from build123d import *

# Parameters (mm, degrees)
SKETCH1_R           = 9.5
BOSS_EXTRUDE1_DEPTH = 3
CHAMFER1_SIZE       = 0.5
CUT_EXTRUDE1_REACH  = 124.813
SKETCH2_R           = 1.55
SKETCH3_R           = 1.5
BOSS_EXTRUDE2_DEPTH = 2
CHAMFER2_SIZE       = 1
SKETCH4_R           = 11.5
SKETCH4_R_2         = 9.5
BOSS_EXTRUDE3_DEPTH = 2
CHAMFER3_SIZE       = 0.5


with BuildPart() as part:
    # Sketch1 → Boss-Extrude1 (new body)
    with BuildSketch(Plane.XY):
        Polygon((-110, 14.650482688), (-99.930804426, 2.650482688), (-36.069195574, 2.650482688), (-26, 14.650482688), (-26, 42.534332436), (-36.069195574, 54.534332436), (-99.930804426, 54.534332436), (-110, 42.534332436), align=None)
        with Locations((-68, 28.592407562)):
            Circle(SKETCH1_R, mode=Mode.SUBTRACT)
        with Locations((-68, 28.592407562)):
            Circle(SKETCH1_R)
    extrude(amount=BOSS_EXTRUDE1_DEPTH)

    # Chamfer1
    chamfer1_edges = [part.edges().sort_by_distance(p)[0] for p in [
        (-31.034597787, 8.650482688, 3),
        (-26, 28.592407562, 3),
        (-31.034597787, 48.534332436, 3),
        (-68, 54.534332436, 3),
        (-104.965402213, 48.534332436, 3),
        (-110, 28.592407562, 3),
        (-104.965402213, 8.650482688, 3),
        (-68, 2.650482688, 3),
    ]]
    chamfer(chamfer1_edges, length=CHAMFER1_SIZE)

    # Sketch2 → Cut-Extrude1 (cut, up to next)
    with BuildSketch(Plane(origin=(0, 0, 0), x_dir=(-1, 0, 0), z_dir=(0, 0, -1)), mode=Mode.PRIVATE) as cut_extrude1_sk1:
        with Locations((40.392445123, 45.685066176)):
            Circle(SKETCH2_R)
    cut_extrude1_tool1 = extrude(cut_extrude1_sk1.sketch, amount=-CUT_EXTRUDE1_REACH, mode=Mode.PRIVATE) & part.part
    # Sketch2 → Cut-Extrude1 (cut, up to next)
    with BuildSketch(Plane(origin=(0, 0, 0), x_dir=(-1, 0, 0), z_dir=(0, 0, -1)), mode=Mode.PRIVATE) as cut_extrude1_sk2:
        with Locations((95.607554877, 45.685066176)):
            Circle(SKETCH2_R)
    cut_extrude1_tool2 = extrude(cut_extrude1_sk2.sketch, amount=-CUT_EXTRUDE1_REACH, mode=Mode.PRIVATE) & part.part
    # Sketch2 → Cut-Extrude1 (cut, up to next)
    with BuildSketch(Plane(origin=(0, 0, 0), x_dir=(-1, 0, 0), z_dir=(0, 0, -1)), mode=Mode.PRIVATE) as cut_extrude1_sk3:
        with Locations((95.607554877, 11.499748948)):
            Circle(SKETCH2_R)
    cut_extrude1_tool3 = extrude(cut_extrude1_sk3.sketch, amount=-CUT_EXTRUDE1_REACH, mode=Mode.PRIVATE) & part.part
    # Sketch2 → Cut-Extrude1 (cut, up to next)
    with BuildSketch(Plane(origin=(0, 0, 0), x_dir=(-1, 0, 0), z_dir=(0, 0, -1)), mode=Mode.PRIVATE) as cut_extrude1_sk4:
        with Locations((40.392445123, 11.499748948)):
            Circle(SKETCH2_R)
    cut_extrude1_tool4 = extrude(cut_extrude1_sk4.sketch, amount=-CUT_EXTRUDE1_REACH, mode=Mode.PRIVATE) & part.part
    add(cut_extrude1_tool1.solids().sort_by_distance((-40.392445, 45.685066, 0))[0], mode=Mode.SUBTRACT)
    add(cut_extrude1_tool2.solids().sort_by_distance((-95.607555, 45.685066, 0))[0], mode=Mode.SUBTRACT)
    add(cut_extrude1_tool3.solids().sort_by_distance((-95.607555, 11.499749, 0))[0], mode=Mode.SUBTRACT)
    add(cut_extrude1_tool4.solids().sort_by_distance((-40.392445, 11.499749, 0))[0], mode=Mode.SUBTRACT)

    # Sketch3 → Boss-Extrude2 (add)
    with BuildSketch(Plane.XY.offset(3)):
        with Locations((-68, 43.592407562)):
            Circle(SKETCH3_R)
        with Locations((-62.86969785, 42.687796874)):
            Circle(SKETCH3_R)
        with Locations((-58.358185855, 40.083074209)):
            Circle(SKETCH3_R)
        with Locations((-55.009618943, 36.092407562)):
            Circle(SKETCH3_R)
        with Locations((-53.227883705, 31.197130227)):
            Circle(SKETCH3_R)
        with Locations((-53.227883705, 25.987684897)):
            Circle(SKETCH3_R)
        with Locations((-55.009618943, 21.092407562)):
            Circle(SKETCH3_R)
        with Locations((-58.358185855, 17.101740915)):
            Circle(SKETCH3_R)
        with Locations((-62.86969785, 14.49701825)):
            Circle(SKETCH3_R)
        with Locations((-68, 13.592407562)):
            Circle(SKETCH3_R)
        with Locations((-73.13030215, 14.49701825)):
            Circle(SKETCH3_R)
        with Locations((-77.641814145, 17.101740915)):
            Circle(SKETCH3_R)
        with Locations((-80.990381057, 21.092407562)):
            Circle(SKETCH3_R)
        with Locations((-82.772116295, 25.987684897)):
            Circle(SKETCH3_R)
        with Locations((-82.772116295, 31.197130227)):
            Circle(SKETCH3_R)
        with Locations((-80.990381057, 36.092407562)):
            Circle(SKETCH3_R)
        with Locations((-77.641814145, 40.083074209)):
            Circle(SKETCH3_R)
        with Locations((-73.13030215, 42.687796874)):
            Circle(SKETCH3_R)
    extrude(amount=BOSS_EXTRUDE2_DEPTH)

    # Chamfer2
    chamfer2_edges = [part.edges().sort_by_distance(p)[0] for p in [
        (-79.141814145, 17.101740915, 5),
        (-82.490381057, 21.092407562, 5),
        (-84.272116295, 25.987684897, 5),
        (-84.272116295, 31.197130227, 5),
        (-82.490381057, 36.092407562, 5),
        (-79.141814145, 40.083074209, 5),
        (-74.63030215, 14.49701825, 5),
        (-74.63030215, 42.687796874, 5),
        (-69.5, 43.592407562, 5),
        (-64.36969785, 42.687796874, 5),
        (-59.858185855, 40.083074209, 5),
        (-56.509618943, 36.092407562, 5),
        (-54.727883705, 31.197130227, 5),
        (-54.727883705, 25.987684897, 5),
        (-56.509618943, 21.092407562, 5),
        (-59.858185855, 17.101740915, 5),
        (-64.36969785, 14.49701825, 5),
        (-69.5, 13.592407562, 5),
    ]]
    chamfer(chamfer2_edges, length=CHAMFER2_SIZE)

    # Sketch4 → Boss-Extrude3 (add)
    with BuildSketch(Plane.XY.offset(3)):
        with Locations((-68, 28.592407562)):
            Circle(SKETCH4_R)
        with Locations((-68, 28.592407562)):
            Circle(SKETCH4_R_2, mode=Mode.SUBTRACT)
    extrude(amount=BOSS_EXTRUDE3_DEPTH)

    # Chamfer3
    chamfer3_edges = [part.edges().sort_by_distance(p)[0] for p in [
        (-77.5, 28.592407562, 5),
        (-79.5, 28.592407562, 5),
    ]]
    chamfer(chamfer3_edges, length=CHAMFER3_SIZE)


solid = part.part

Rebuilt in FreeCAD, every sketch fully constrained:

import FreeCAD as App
import Part
import Sketcher

V = App.Vector
Q = App.Units.Quantity


def edges_at(feature, points):
    """Names of the edges that pass closest to the given points."""
    edges = feature.Shape.Edges
    near = lambda p: min(range(len(edges)), key=lambda i: edges[i].distToShape(Part.Vertex(*p))[0])
    return sorted({f"Edge{near(p) + 1}" for p in points})

doc = App.newDocument("Part")
params = doc.addObject("Spreadsheet::Sheet", "Params")
for row, (alias, value) in enumerate([
    ("pad1_length", "3 mm"),
    ("chamfer_size", "0.5 mm"),
    ("sketch2_diameter", "3.1 mm"),
    ("sketch3_diameter", "3.1 mm"),
    ("sketch4_diameter", "3.1 mm"),
    ("sketch5_diameter", "3.1 mm"),
    ("sketch6_diameter", "3 mm"),
    ("pad2_length", "2 mm"),
    ("chamfer2_size", "1 mm"),
    ("sketch7_diameter", "23 mm"),
    ("sketch7_diameter2", "19 mm"),
    ("pad3_length", "2 mm"),
    ("chamfer3_size", "0.5 mm"),
], start=1):
    params.set(f"A{row}", alias)
    params.set(f"B{row}", "=" + value)
    params.setAlias(f"B{row}", alias)

body = doc.addObject("PartDesign::Body", "Body")

# Sketch on XY plane
sketch1 = body.newObject("Sketcher::SketchObject", "Sketch")
sketch1.AttachmentSupport = (doc.getObject("XY_Plane"), [""])
sketch1.MapMode = "FlatFace"
sketch1.addGeometry(Part.LineSegment(V(-110, 15, 0), V(-100, 3, 0)), False)
sketch1.addGeometry(Part.LineSegment(V(-100, 3, 0), V(-36, 3, 0)), False)
sketch1.addGeometry(Part.LineSegment(V(-36, 3, 0), V(-26, 15, 0)), False)
sketch1.addGeometry(Part.LineSegment(V(-26, 15, 0), V(-26, 43, 0)), False)
sketch1.addGeometry(Part.LineSegment(V(-26, 43, 0), V(-36, 55, 0)), False)
sketch1.addGeometry(Part.LineSegment(V(-36, 55, 0), V(-100, 55, 0)), False)
sketch1.addGeometry(Part.LineSegment(V(-100, 55, 0), V(-110, 43, 0)), False)
sketch1.addGeometry(Part.LineSegment(V(-110, 43, 0), V(-110, 15, 0)), False)
sketch1.addConstraint(Sketcher.Constraint("Coincident", 0, 2, 1, 1))
sketch1.addConstraint(Sketcher.Constraint("Coincident", 1, 2, 2, 1))
sketch1.addConstraint(Sketcher.Constraint("Coincident", 2, 2, 3, 1))
sketch1.addConstraint(Sketcher.Constraint("Coincident", 3, 2, 4, 1))
sketch1.addConstraint(Sketcher.Constraint("Coincident", 4, 2, 5, 1))
sketch1.addConstraint(Sketcher.Constraint("Coincident", 5, 2, 6, 1))
sketch1.addConstraint(Sketcher.Constraint("Coincident", 6, 2, 7, 1))
sketch1.addConstraint(Sketcher.Constraint("Coincident", 7, 2, 0, 1))
sketch1.addConstraint(Sketcher.Constraint("Horizontal", 1))
sketch1.addConstraint(Sketcher.Constraint("Vertical", 3))
sketch1.addConstraint(Sketcher.Constraint("Horizontal", 5))
sketch1.addConstraint(Sketcher.Constraint("Vertical", 7))
sketch1.addConstraint(Sketcher.Constraint("Parallel", 0, 4))
sketch1.addConstraint(Sketcher.Constraint("Parallel", 2, 6))
sketch1.addConstraint(Sketcher.Constraint("Horizontal", 3, 2, 6, 2))
sketch1.addConstraint(Sketcher.Constraint("Horizontal", 2, 2, 7, 2))
sketch1.addConstraint(Sketcher.Constraint("Vertical", 1, 2, 4, 2))
sketch1.addConstraint(Sketcher.Constraint("Vertical", 0, 2, 5, 2))
sketch1.addConstraint(Sketcher.Constraint("Angle", 0, Q("-50 deg")))
sketch1.addConstraint(Sketcher.Constraint("DistanceX", 2, 2, -1, 1, 26.0))
sketch1.addConstraint(Sketcher.Constraint("DistanceX", 6, 2, -1, 1, 110.0))
sketch1.addConstraint(Sketcher.Constraint("DistanceY", 1, 2, 2, 2, 12.0))
sketch1.addConstraint(Sketcher.Constraint("DistanceY", 3, 1, 3, 2, 27.88385))
sketch1.addConstraint(Sketcher.Constraint("DistanceY", -1, 1, 0, 2, 2.650483))
pad1 = body.newObject("PartDesign::Pad", "Pad")
pad1.Profile = sketch1
pad1.setExpression("Length", "Params.pad1_length")
doc.recompute()

chamfer = body.newObject("PartDesign::Chamfer", "Chamfer")
chamfer.Base = (pad1, edges_at(pad1, [
    (-31.035, 8.65, 3),
    (-26, 28.592, 3),
    (-31.035, 48.534, 3),
    (-68, 54.534, 3),
    (-104.965, 48.534, 3),
    (-110, 28.592, 3),
    (-104.965, 8.65, 3),
    (-68, 2.65, 3),
]))
chamfer.setExpression("Size", "Params.chamfer_size")

# Sketch on XY plane
sketch2 = body.newObject("Sketcher::SketchObject", "Sketch001")
sketch2.AttachmentSupport = (doc.getObject("XY_Plane"), [""])
sketch2.MapMode = "FlatFace"
sketch2.addGeometry(Part.Circle(V(-40.4, 45.7, 0), V(0, 0, 1), 1.6), False)
sketch2.addConstraint(Sketcher.Constraint("Diameter", 0, 3.1))
sketch2.addConstraint(Sketcher.Constraint("DistanceX", 0, 3, -1, 1, 40.392445))
sketch2.addConstraint(Sketcher.Constraint("DistanceY", -1, 1, 0, 3, 45.685066))
sketch2.setExpression("Constraints[0]", "Params.sketch2_diameter")
pocket1 = body.newObject("PartDesign::Pocket", "Pocket")
pocket1.Profile = sketch2
pocket1.Type = "UpToFirst"
pocket1.Reversed = True

# Sketch on XY plane
sketch3 = body.newObject("Sketcher::SketchObject", "Sketch002")
sketch3.AttachmentSupport = (doc.getObject("XY_Plane"), [""])
sketch3.MapMode = "FlatFace"
sketch3.addGeometry(Part.Circle(V(-95.6, 45.7, 0), V(0, 0, 1), 1.6), False)
sketch3.addConstraint(Sketcher.Constraint("Diameter", 0, 3.1))
sketch3.addConstraint(Sketcher.Constraint("DistanceX", 0, 3, -1, 1, 95.607555))
sketch3.addConstraint(Sketcher.Constraint("DistanceY", -1, 1, 0, 3, 45.685066))
sketch3.setExpression("Constraints[0]", "Params.sketch3_diameter")
pocket2 = body.newObject("PartDesign::Pocket", "Pocket001")
pocket2.Profile = sketch3
pocket2.Type = "UpToFirst"
pocket2.Reversed = True

# Sketch on XY plane
sketch4 = body.newObject("Sketcher::SketchObject", "Sketch003")
sketch4.AttachmentSupport = (doc.getObject("XY_Plane"), [""])
sketch4.MapMode = "FlatFace"
sketch4.addGeometry(Part.Circle(V(-95.6, 11.5, 0), V(0, 0, 1), 1.6), False)
sketch4.addConstraint(Sketcher.Constraint("Diameter", 0, 3.1))
sketch4.addConstraint(Sketcher.Constraint("DistanceY", -1, 1, 0, 3, 11.499749))
sketch4.addConstraint(Sketcher.Constraint("DistanceX", 0, 3, -1, 1, 95.607555))
sketch4.setExpression("Constraints[0]", "Params.sketch4_diameter")
pocket3 = body.newObject("PartDesign::Pocket", "Pocket002")
pocket3.Profile = sketch4
pocket3.Type = "UpToFirst"
pocket3.Reversed = True

# Sketch on XY plane
sketch5 = body.newObject("Sketcher::SketchObject", "Sketch004")
sketch5.AttachmentSupport = (doc.getObject("XY_Plane"), [""])
sketch5.MapMode = "FlatFace"
sketch5.addGeometry(Part.Circle(V(-40.4, 11.5, 0), V(0, 0, 1), 1.6), False)
sketch5.addConstraint(Sketcher.Constraint("Diameter", 0, 3.1))
sketch5.addConstraint(Sketcher.Constraint("DistanceY", -1, 1, 0, 3, 11.499749))
sketch5.addConstraint(Sketcher.Constraint("DistanceX", 0, 3, -1, 1, 40.392445))
sketch5.setExpression("Constraints[0]", "Params.sketch5_diameter")
pocket4 = body.newObject("PartDesign::Pocket", "Pocket003")
pocket4.Profile = sketch5
pocket4.Type = "UpToFirst"
pocket4.Reversed = True

# Sketch on XY plane
sketch6 = body.newObject("Sketcher::SketchObject", "Sketch005")
sketch6.AttachmentSupport = (doc.getObject("XY_Plane"), [""])
sketch6.MapMode = "FlatFace"
sketch6.AttachmentOffset = App.Placement(V(0, 0, 3), App.Rotation())
sketch6.addGeometry(Part.Circle(V(-68, 43.6, 0), V(0, 0, 1), 1.5), False)
sketch6.addGeometry(Part.Circle(V(-62.9, 42.7, 0), V(0, 0, 1), 1.5), False)
sketch6.addGeometry(Part.Circle(V(-58.4, 40.1, 0), V(0, 0, 1), 1.5), False)
sketch6.addGeometry(Part.Circle(V(-55, 36.1, 0), V(0, 0, 1), 1.5), False)
sketch6.addGeometry(Part.Circle(V(-53.2, 31.2, 0), V(0, 0, 1), 1.5), False)
sketch6.addGeometry(Part.Circle(V(-53.2, 26, 0), V(0, 0, 1), 1.5), False)
sketch6.addGeometry(Part.Circle(V(-55, 21.1, 0), V(0, 0, 1), 1.5), False)
sketch6.addGeometry(Part.Circle(V(-58.4, 17.1, 0), V(0, 0, 1), 1.5), False)
sketch6.addGeometry(Part.Circle(V(-62.9, 14.5, 0), V(0, 0, 1), 1.5), False)
sketch6.addGeometry(Part.Circle(V(-68, 13.6, 0), V(0, 0, 1), 1.5), False)
sketch6.addGeometry(Part.Circle(V(-73.1, 14.5, 0), V(0, 0, 1), 1.5), False)
sketch6.addGeometry(Part.Circle(V(-77.6, 17.1, 0), V(0, 0, 1), 1.5), False)
sketch6.addGeometry(Part.Circle(V(-81, 21.1, 0), V(0, 0, 1), 1.5), False)
sketch6.addGeometry(Part.Circle(V(-82.8, 26, 0), V(0, 0, 1), 1.5), False)
sketch6.addGeometry(Part.Circle(V(-82.8, 31.2, 0), V(0, 0, 1), 1.5), False)
sketch6.addGeometry(Part.Circle(V(-81, 36.1, 0), V(0, 0, 1), 1.5), False)
sketch6.addGeometry(Part.Circle(V(-77.6, 40.1, 0), V(0, 0, 1), 1.5), False)
sketch6.addGeometry(Part.Circle(V(-73.1, 42.7, 0), V(0, 0, 1), 1.5), False)
sketch6.addConstraint(Sketcher.Constraint("Equal", 0, 1))
sketch6.addConstraint(Sketcher.Constraint("Equal", 1, 2))
sketch6.addConstraint(Sketcher.Constraint("Equal", 2, 3))
sketch6.addConstraint(Sketcher.Constraint("Equal", 3, 4))
sketch6.addConstraint(Sketcher.Constraint("Equal", 4, 5))
sketch6.addConstraint(Sketcher.Constraint("Equal", 5, 6))
sketch6.addConstraint(Sketcher.Constraint("Equal", 6, 7))
sketch6.addConstraint(Sketcher.Constraint("Equal", 7, 8))
sketch6.addConstraint(Sketcher.Constraint("Equal", 8, 9))
sketch6.addConstraint(Sketcher.Constraint("Equal", 9, 10))
sketch6.addConstraint(Sketcher.Constraint("Equal", 10, 11))
sketch6.addConstraint(Sketcher.Constraint("Equal", 11, 12))
sketch6.addConstraint(Sketcher.Constraint("Equal", 12, 13))
sketch6.addConstraint(Sketcher.Constraint("Equal", 13, 14))
sketch6.addConstraint(Sketcher.Constraint("Equal", 14, 15))
sketch6.addConstraint(Sketcher.Constraint("Equal", 15, 16))
sketch6.addConstraint(Sketcher.Constraint("Equal", 16, 17))
sketch6.addConstraint(Sketcher.Constraint("Horizontal", 8, 3, 10, 3))
sketch6.addConstraint(Sketcher.Constraint("Horizontal", 7, 3, 11, 3))
sketch6.addConstraint(Sketcher.Constraint("Horizontal", 6, 3, 12, 3))
sketch6.addConstraint(Sketcher.Constraint("Horizontal", 5, 3, 13, 3))
sketch6.addConstraint(Sketcher.Constraint("Horizontal", 4, 3, 14, 3))
sketch6.addConstraint(Sketcher.Constraint("Horizontal", 3, 3, 15, 3))
sketch6.addConstraint(Sketcher.Constraint("Horizontal", 2, 3, 16, 3))
sketch6.addConstraint(Sketcher.Constraint("Horizontal", 1, 3, 17, 3))
sketch6.addConstraint(Sketcher.Constraint("Vertical", 4, 3, 5, 3))
sketch6.addConstraint(Sketcher.Constraint("Vertical", 3, 3, 6, 3))
sketch6.addConstraint(Sketcher.Constraint("Vertical", 2, 3, 7, 3))
sketch6.addConstraint(Sketcher.Constraint("Vertical", 1, 3, 8, 3))
sketch6.addConstraint(Sketcher.Constraint("Vertical", 0, 3, 9, 3))
sketch6.addConstraint(Sketcher.Constraint("Vertical", 13, 3, 14, 3))
sketch6.addConstraint(Sketcher.Constraint("Vertical", 12, 3, 15, 3))
sketch6.addConstraint(Sketcher.Constraint("Vertical", 11, 3, 16, 3))
sketch6.addConstraint(Sketcher.Constraint("Vertical", 10, 3, 17, 3))
sketch6.addConstraint(Sketcher.Constraint("Diameter", 0, 3.0))
sketch6.addConstraint(Sketcher.Constraint("DistanceX", 0, 3, -1, 1, 68.0))
sketch6.addConstraint(Sketcher.Constraint("DistanceY", 6, 3, 3, 3, 15.0))
sketch6.addConstraint(Sketcher.Constraint("DistanceY", 3, 3, 0, 3, 7.5))
sketch6.addConstraint(Sketcher.Constraint("DistanceY", 9, 3, 6, 3, 7.5))
sketch6.addConstraint(Sketcher.Constraint("DistanceX", 3, 3, -1, 1, 55.009619))
sketch6.addConstraint(Sketcher.Constraint("DistanceY", -1, 1, 4, 3, 31.19713))
sketch6.addConstraint(Sketcher.Constraint("DistanceY", -1, 1, 7, 3, 17.101741))
sketch6.addConstraint(Sketcher.Constraint("DistanceY", -1, 1, 8, 3, 14.497018))
sketch6.addConstraint(Sketcher.Constraint("DistanceX", 12, 3, -1, 1, 80.990381))
sketch6.addConstraint(Sketcher.Constraint("DistanceY", 1, 3, 0, 3, 0.904611))
sketch6.addConstraint(Sketcher.Constraint("DistanceX", 1, 3, 2, 3, 4.511512))
sketch6.addConstraint(Sketcher.Constraint("DistanceX", 1, 3, 3, 3, 7.860079))
sketch6.addConstraint(Sketcher.Constraint("DistanceY", 5, 3, 2, 3, 14.095389))
sketch6.addConstraint(Sketcher.Constraint("DistanceY", 5, 3, 1, 3, 16.700112))
sketch6.addConstraint(Sketcher.Constraint("DistanceY", 8, 3, 6, 3, 6.595389))
sketch6.addConstraint(Sketcher.Constraint("DistanceX", 10, 3, 5, 3, 19.902418))
sketch6.addConstraint(Sketcher.Constraint("DistanceX", 11, 3, 10, 3, 4.511512))
sketch6.addConstraint(Sketcher.Constraint("DistanceX", 11, 3, 7, 3, 19.283628))
sketch6.addConstraint(Sketcher.Constraint("DistanceX", 13, 3, -1, 1, 82.772116))
sketch6.setExpression("Constraints[34]", "Params.sketch6_diameter")
pad2 = body.newObject("PartDesign::Pad", "Pad001")
pad2.Profile = sketch6
pad2.setExpression("Length", "Params.pad2_length")
doc.recompute()

chamfer2 = body.newObject("PartDesign::Chamfer", "Chamfer001")
chamfer2.Base = (pad2, edges_at(pad2, [
    (-79.142, 17.102, 5),
    (-82.49, 21.092, 5),
    (-84.272, 25.988, 5),
    (-84.272, 31.197, 5),
    (-82.49, 36.092, 5),
    (-79.142, 40.083, 5),
    (-74.63, 14.497, 5),
    (-74.63, 42.688, 5),
    (-69.5, 43.592, 5),
    (-64.37, 42.688, 5),
    (-59.858, 40.083, 5),
    (-56.51, 36.092, 5),
    (-54.728, 31.197, 5),
    (-54.728, 25.988, 5),
    (-56.51, 21.092, 5),
    (-59.858, 17.102, 5),
    (-64.37, 14.497, 5),
    (-69.5, 13.592, 5),
]))
chamfer2.setExpression("Size", "Params.chamfer2_size")

# Sketch on XY plane
sketch7 = body.newObject("Sketcher::SketchObject", "Sketch006")
sketch7.AttachmentSupport = (doc.getObject("XY_Plane"), [""])
sketch7.MapMode = "FlatFace"
sketch7.AttachmentOffset = App.Placement(V(0, 0, 3), App.Rotation())
sketch7.addGeometry(Part.Circle(V(-68, 29, 0), V(0, 0, 1), 12), False)
sketch7.addGeometry(Part.Circle(V(-68, 29, 0), V(0, 0, 1), 10), False)
sketch7.addConstraint(Sketcher.Constraint("Coincident", 1, 3, 0, 3))
sketch7.addConstraint(Sketcher.Constraint("Diameter", 0, 23.0))
sketch7.addConstraint(Sketcher.Constraint("Diameter", 1, 19.0))
sketch7.addConstraint(Sketcher.Constraint("DistanceX", 0, 3, -1, 1, 68.0))
sketch7.addConstraint(Sketcher.Constraint("DistanceY", -1, 1, 0, 3, 28.592408))
sketch7.setExpression("Constraints[1]", "Params.sketch7_diameter")
sketch7.setExpression("Constraints[2]", "Params.sketch7_diameter2")
pad3 = body.newObject("PartDesign::Pad", "Pad002")
pad3.Profile = sketch7
pad3.setExpression("Length", "Params.pad3_length")
doc.recompute()

chamfer3 = body.newObject("PartDesign::Chamfer", "Chamfer002")
chamfer3.Base = (pad3, edges_at(pad3, [(-77.5, 28.592, 5), (-79.5, 28.592, 5)]))
chamfer3.setExpression("Size", "Params.chamfer3_size")

doc.recompute()
